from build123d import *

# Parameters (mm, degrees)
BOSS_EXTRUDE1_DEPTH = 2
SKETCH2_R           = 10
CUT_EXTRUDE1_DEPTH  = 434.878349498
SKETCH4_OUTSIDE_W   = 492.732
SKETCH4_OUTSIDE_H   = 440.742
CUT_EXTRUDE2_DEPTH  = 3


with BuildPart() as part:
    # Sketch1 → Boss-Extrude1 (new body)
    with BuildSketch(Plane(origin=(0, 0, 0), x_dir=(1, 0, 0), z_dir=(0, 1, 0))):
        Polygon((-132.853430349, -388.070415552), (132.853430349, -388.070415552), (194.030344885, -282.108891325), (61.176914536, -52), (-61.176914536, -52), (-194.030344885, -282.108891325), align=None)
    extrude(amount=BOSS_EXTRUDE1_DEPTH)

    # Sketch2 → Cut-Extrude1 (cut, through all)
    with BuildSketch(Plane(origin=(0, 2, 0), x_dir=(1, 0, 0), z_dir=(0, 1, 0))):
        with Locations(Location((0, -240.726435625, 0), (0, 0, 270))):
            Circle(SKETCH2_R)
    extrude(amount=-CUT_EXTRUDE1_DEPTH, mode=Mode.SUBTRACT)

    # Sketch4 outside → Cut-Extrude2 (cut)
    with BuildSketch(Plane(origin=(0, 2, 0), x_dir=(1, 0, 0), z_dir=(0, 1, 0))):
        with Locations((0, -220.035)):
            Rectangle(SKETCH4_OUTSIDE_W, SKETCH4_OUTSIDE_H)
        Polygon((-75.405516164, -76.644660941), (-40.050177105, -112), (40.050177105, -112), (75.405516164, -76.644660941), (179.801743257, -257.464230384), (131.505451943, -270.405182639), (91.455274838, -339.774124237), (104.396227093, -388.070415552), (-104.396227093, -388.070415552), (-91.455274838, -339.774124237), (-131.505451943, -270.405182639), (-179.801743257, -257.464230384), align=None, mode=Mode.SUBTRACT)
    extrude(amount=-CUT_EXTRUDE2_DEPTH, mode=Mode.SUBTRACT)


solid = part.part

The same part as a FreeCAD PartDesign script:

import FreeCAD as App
import Part
import Sketcher
from FreeCAD import Vector
Q = App.Units.Quantity

doc = App.newDocument("Part")
body = doc.addObject("PartDesign::Body", "Body")

sketch1 = body.newObject("Sketcher::SketchObject", "Sketch")
sketch1.AttachmentSupport = (doc.getObject("XZ_Plane"), [""])
sketch1.MapMode = "FlatFace"
sketch1.addGeometry(Part.LineSegment(Vector(-133, 388, 0), Vector(133, 388, 0)), False)
sketch1.addGeometry(Part.LineSegment(Vector(133, 388, 0), Vector(194, 282, 0)), False)
sketch1.addGeometry(Part.LineSegment(Vector(194, 282, 0), Vector(61, 52, 0)), False)
sketch1.addGeometry(Part.LineSegment(Vector(61, 52, 0), Vector(-61, 52, 0)), False)
sketch1.addGeometry(Part.LineSegment(Vector(-61, 52, 0), Vector(-194, 282, 0)), False)
sketch1.addGeometry(Part.LineSegment(Vector(-194, 282, 0), Vector(-133, 388, 0)), False)
sketch1.addConstraint(Sketcher.Constraint("Coincident", 0, 2, 1, 1))
sketch1.addConstraint(Sketcher.Constraint("Coincident", 1, 2, 2, 1))
sketch1.addConstraint(Sketcher.Constraint("Coincident", 2, 2, 3, 1))
sketch1.addConstraint(Sketcher.Constraint("Coincident", 3, 2, 4, 1))
sketch1.addConstraint(Sketcher.Constraint("Coincident", 4, 2, 5, 1))
sketch1.addConstraint(Sketcher.Constraint("Coincident", 5, 2, 0, 1))
sketch1.addConstraint(Sketcher.Constraint("Horizontal", 0))
sketch1.addConstraint(Sketcher.Constraint("Horizontal", 3))
sketch1.addConstraint(Sketcher.Constraint("Symmetric", 1, 2, 4, 2, -2))
sketch1.addConstraint(Sketcher.Constraint("Parallel", 1, 4))
sketch1.addConstraint(Sketcher.Constraint("Parallel", 2, 5))
sketch1.addConstraint(Sketcher.Constraint("Equal", 2, 4))
sketch1.addConstraint(Sketcher.Constraint("Angle", 1, Q("-60 deg")))
sketch1.addConstraint(Sketcher.Constraint("DistanceY", -1, 1, 2, 2, 52.0))
sketch1.addConstraint(Sketcher.Constraint("DistanceX", 0, 1, 0, 2, 265.706861))
sketch1.addConstraint(Sketcher.Constraint("DistanceX", 3, 2, 3, 1, 122.353829))
sketch1.addConstraint(Sketcher.Constraint("Distance", 1, 122.353829))
pad1 = body.newObject("PartDesign::Pad", "Pad")
pad1.Profile = sketch1
pad1.Length = 2
pad1.Reversed = True

sketch2 = body.newObject("Sketcher::SketchObject", "Sketch001")
sketch2.AttachmentSupport = (doc.getObject("XZ_Plane"), [""])
sketch2.MapMode = "FlatFace"
sketch2.AttachmentOffset = App.Placement(Vector(0, 0, -2), App.Rotation())
sketch2.addGeometry(Part.Circle(Vector(0, 241, 0), Vector(0, 0, 1), 10), False)
sketch2.addConstraint(Sketcher.Constraint("PointOnObject", 0, 3, -2))
sketch2.addConstraint(Sketcher.Constraint("Diameter", 0, 20.0))
sketch2.addConstraint(Sketcher.Constraint("DistanceY", -1, 1, 0, 3, 240.726436))
pocket1 = body.newObject("PartDesign::Pocket", "Pocket")
pocket1.Profile = sketch2
pocket1.Type = "ThroughAll"
pocket1.Reversed = True

sketch3 = body.newObject("Sketcher::SketchObject", "Sketch002")
sketch3.AttachmentSupport = (doc.getObject("XZ_Plane"), [""])
sketch3.MapMode = "FlatFace"
sketch3.AttachmentOffset = App.Placement(Vector(0, 0, -2), App.Rotation())
sketch3.addGeometry(Part.LineSegment(Vector(-246, 0, 0), Vector(-246, 440, 0)), False)
sketch3.addGeometry(Part.LineSegment(Vector(-246, 440, 0), Vector(246, 440, 0)), False)
sketch3.addGeometry(Part.LineSegment(Vector(246, 440, 0), Vector(246, 0, 0)), False)
sketch3.addGeometry(Part.LineSegment(Vector(246, 0, 0), Vector(-246, 0, 0)), False)
sketch3.addGeometry(Part.LineSegment(Vector(-180, 257, 0), Vector(-75, 77, 0)), False)
sketch3.addGeometry(Part.LineSegment(Vector(-75, 77, 0), Vector(-40, 112, 0)), False)
sketch3.addGeometry(Part.LineSegment(Vector(-40, 112, 0), Vector(40, 112, 0)), False)
sketch3.addGeometry(Part.LineSegment(Vector(40, 112, 0), Vector(75, 77, 0)), False)
sketch3.addGeometry(Part.LineSegment(Vector(75, 77, 0), Vector(180, 257, 0)), False)
sketch3.addGeometry(Part.LineSegment(Vector(180, 257, 0), Vector(132, 270, 0)), False)
sketch3.addGeometry(Part.LineSegment(Vector(132, 270, 0), Vector(91, 340, 0)), False)
sketch3.addGeometry(Part.LineSegment(Vector(91, 340, 0), Vector(104, 388, 0)), False)
sketch3.addGeometry(Part.LineSegment(Vector(104, 388, 0), Vector(-104, 388, 0)), False)
sketch3.addGeometry(Part.LineSegment(Vector(-104, 388, 0), Vector(-91, 340, 0)), False)
sketch3.addGeometry(Part.LineSegment(Vector(-91, 340, 0), Vector(-132, 270, 0)), False)
sketch3.addGeometry(Part.LineSegment(Vector(-132, 270, 0), Vector(-180, 257, 0)), False)
sketch3.addConstraint(Sketcher.Constraint("Coincident", 0, 2, 1, 1))
sketch3.addConstraint(Sketcher.Constraint("Coincident", 1, 2, 2, 1))
sketch3.addConstraint(Sketcher.Constraint("Coincident", 2, 2, 3, 1))
sketch3.addConstraint(Sketcher.Constraint("Coincident", 3, 2, 0, 1))
sketch3.addConstraint(Sketcher.Constraint("Coincident", 4, 2, 5, 1))
sketch3.addConstraint(Sketcher.Constraint("Coincident", 5, 2, 6, 1))
sketch3.addConstraint(Sketcher.Constraint("Coincident", 6, 2, 7, 1))
sketch3.addConstraint(Sketcher.Constraint("Coincident", 7, 2, 8, 1))
sketch3.addConstraint(Sketcher.Constraint("Coincident", 8, 2, 9, 1))
sketch3.addConstraint(Sketcher.Constraint("Coincident", 9, 2, 10, 1))
sketch3.addConstraint(Sketcher.Constraint("Coincident", 10, 2, 11, 1))
sketch3.addConstraint(Sketcher.Constraint("Coincident", 11, 2, 12, 1))
sketch3.addConstraint(Sketcher.Constraint("Coincident", 12, 2, 13, 1))
sketch3.addConstraint(Sketcher.Constraint("Coincident", 13, 2, 14, 1))
sketch3.addConstraint(Sketcher.Constraint("Coincident", 14, 2, 15, 1))
sketch3.addConstraint(Sketcher.Constraint("Coincident", 15, 2, 4, 1))
sketch3.addConstraint(Sketcher.Constraint("Vertical", 0))
sketch3.addConstraint(Sketcher.Constraint("Horizontal", 1))
sketch3.addConstraint(Sketcher.Constraint("Vertical", 2))
sketch3.addConstraint(Sketcher.Constraint("Horizontal", 3))
sketch3.addConstraint(Sketcher.Constraint("Horizontal", 6))
sketch3.addConstraint(Sketcher.Constraint("Horizontal", 12))
sketch3.addConstraint(Sketcher.Constraint("Symmetric", 4, 2, 7, 2, -2))
sketch3.addConstraint(Sketcher.Constraint("Symmetric", 10, 2, 13, 2, -2))
sketch3.addConstraint(Sketcher.Constraint("Symmetric", 9, 2, 14, 2, -2))
sketch3.addConstraint(Sketcher.Constraint("Symmetric", 8, 2, 15, 2, -2))
sketch3.addConstraint(Sketcher.Constraint("Perpendicular", 5, 7))
sketch3.addConstraint(Sketcher.Constraint("Parallel", 4, 10))
sketch3.addConstraint(Sketcher.Constraint("Perpendicular", 9, 11))
sketch3.addConstraint(Sketcher.Constraint("Perpendicular", 13, 15))
sketch3.addConstraint(Sketcher.Constraint("Equal", 5, 7))
sketch3.addConstraint(Sketcher.Constraint("Equal", 7, 9))
sketch3.addConstraint(Sketcher.Constraint("Equal", 9, 11))
sketch3.addConstraint(Sketcher.Constraint("Angle", 4, Q("-60 deg")))
sketch3.addConstraint(Sketcher.Constraint("Angle", 9, Q("165 deg")))
sketch3.addConstraint(Sketcher.Constraint("Distance", 5, 50.0))
sketch3.addConstraint(Sketcher.Constraint("DistanceY", -1, 1, 5, 2, 112.0))
sketch3.addConstraint(Sketcher.Constraint("DistanceX", 1, 1, 1, 2, 492.732))
sketch3.addConstraint(Sketcher.Constraint("DistanceY", 0, 1, 0, 2, 440.742))
sketch3.addConstraint(Sketcher.Constraint("DistanceX", 0, 2, -1, 1, 246.366))
sketch3.addConstraint(Sketcher.Constraint("DistanceY", -1, 1, 0, 2, 440.406))
sketch3.addConstraint(Sketcher.Constraint("DistanceX", 12, 2, 10, 2, 195.851502))
sketch3.addConstraint(Sketcher.Constraint("DistanceX", 6, 1, 6, 2, 80.100354))
sketch3.addConstraint(Sketcher.Constraint("DistanceY", -1, 1, 8, 2, 257.46423))
pocket2 = body.newObject("PartDesign::Pocket", "Pocket001")
pocket2.Profile = sketch3
pocket2.Length = 3
pocket2.Reversed = True

doc.recompute()
